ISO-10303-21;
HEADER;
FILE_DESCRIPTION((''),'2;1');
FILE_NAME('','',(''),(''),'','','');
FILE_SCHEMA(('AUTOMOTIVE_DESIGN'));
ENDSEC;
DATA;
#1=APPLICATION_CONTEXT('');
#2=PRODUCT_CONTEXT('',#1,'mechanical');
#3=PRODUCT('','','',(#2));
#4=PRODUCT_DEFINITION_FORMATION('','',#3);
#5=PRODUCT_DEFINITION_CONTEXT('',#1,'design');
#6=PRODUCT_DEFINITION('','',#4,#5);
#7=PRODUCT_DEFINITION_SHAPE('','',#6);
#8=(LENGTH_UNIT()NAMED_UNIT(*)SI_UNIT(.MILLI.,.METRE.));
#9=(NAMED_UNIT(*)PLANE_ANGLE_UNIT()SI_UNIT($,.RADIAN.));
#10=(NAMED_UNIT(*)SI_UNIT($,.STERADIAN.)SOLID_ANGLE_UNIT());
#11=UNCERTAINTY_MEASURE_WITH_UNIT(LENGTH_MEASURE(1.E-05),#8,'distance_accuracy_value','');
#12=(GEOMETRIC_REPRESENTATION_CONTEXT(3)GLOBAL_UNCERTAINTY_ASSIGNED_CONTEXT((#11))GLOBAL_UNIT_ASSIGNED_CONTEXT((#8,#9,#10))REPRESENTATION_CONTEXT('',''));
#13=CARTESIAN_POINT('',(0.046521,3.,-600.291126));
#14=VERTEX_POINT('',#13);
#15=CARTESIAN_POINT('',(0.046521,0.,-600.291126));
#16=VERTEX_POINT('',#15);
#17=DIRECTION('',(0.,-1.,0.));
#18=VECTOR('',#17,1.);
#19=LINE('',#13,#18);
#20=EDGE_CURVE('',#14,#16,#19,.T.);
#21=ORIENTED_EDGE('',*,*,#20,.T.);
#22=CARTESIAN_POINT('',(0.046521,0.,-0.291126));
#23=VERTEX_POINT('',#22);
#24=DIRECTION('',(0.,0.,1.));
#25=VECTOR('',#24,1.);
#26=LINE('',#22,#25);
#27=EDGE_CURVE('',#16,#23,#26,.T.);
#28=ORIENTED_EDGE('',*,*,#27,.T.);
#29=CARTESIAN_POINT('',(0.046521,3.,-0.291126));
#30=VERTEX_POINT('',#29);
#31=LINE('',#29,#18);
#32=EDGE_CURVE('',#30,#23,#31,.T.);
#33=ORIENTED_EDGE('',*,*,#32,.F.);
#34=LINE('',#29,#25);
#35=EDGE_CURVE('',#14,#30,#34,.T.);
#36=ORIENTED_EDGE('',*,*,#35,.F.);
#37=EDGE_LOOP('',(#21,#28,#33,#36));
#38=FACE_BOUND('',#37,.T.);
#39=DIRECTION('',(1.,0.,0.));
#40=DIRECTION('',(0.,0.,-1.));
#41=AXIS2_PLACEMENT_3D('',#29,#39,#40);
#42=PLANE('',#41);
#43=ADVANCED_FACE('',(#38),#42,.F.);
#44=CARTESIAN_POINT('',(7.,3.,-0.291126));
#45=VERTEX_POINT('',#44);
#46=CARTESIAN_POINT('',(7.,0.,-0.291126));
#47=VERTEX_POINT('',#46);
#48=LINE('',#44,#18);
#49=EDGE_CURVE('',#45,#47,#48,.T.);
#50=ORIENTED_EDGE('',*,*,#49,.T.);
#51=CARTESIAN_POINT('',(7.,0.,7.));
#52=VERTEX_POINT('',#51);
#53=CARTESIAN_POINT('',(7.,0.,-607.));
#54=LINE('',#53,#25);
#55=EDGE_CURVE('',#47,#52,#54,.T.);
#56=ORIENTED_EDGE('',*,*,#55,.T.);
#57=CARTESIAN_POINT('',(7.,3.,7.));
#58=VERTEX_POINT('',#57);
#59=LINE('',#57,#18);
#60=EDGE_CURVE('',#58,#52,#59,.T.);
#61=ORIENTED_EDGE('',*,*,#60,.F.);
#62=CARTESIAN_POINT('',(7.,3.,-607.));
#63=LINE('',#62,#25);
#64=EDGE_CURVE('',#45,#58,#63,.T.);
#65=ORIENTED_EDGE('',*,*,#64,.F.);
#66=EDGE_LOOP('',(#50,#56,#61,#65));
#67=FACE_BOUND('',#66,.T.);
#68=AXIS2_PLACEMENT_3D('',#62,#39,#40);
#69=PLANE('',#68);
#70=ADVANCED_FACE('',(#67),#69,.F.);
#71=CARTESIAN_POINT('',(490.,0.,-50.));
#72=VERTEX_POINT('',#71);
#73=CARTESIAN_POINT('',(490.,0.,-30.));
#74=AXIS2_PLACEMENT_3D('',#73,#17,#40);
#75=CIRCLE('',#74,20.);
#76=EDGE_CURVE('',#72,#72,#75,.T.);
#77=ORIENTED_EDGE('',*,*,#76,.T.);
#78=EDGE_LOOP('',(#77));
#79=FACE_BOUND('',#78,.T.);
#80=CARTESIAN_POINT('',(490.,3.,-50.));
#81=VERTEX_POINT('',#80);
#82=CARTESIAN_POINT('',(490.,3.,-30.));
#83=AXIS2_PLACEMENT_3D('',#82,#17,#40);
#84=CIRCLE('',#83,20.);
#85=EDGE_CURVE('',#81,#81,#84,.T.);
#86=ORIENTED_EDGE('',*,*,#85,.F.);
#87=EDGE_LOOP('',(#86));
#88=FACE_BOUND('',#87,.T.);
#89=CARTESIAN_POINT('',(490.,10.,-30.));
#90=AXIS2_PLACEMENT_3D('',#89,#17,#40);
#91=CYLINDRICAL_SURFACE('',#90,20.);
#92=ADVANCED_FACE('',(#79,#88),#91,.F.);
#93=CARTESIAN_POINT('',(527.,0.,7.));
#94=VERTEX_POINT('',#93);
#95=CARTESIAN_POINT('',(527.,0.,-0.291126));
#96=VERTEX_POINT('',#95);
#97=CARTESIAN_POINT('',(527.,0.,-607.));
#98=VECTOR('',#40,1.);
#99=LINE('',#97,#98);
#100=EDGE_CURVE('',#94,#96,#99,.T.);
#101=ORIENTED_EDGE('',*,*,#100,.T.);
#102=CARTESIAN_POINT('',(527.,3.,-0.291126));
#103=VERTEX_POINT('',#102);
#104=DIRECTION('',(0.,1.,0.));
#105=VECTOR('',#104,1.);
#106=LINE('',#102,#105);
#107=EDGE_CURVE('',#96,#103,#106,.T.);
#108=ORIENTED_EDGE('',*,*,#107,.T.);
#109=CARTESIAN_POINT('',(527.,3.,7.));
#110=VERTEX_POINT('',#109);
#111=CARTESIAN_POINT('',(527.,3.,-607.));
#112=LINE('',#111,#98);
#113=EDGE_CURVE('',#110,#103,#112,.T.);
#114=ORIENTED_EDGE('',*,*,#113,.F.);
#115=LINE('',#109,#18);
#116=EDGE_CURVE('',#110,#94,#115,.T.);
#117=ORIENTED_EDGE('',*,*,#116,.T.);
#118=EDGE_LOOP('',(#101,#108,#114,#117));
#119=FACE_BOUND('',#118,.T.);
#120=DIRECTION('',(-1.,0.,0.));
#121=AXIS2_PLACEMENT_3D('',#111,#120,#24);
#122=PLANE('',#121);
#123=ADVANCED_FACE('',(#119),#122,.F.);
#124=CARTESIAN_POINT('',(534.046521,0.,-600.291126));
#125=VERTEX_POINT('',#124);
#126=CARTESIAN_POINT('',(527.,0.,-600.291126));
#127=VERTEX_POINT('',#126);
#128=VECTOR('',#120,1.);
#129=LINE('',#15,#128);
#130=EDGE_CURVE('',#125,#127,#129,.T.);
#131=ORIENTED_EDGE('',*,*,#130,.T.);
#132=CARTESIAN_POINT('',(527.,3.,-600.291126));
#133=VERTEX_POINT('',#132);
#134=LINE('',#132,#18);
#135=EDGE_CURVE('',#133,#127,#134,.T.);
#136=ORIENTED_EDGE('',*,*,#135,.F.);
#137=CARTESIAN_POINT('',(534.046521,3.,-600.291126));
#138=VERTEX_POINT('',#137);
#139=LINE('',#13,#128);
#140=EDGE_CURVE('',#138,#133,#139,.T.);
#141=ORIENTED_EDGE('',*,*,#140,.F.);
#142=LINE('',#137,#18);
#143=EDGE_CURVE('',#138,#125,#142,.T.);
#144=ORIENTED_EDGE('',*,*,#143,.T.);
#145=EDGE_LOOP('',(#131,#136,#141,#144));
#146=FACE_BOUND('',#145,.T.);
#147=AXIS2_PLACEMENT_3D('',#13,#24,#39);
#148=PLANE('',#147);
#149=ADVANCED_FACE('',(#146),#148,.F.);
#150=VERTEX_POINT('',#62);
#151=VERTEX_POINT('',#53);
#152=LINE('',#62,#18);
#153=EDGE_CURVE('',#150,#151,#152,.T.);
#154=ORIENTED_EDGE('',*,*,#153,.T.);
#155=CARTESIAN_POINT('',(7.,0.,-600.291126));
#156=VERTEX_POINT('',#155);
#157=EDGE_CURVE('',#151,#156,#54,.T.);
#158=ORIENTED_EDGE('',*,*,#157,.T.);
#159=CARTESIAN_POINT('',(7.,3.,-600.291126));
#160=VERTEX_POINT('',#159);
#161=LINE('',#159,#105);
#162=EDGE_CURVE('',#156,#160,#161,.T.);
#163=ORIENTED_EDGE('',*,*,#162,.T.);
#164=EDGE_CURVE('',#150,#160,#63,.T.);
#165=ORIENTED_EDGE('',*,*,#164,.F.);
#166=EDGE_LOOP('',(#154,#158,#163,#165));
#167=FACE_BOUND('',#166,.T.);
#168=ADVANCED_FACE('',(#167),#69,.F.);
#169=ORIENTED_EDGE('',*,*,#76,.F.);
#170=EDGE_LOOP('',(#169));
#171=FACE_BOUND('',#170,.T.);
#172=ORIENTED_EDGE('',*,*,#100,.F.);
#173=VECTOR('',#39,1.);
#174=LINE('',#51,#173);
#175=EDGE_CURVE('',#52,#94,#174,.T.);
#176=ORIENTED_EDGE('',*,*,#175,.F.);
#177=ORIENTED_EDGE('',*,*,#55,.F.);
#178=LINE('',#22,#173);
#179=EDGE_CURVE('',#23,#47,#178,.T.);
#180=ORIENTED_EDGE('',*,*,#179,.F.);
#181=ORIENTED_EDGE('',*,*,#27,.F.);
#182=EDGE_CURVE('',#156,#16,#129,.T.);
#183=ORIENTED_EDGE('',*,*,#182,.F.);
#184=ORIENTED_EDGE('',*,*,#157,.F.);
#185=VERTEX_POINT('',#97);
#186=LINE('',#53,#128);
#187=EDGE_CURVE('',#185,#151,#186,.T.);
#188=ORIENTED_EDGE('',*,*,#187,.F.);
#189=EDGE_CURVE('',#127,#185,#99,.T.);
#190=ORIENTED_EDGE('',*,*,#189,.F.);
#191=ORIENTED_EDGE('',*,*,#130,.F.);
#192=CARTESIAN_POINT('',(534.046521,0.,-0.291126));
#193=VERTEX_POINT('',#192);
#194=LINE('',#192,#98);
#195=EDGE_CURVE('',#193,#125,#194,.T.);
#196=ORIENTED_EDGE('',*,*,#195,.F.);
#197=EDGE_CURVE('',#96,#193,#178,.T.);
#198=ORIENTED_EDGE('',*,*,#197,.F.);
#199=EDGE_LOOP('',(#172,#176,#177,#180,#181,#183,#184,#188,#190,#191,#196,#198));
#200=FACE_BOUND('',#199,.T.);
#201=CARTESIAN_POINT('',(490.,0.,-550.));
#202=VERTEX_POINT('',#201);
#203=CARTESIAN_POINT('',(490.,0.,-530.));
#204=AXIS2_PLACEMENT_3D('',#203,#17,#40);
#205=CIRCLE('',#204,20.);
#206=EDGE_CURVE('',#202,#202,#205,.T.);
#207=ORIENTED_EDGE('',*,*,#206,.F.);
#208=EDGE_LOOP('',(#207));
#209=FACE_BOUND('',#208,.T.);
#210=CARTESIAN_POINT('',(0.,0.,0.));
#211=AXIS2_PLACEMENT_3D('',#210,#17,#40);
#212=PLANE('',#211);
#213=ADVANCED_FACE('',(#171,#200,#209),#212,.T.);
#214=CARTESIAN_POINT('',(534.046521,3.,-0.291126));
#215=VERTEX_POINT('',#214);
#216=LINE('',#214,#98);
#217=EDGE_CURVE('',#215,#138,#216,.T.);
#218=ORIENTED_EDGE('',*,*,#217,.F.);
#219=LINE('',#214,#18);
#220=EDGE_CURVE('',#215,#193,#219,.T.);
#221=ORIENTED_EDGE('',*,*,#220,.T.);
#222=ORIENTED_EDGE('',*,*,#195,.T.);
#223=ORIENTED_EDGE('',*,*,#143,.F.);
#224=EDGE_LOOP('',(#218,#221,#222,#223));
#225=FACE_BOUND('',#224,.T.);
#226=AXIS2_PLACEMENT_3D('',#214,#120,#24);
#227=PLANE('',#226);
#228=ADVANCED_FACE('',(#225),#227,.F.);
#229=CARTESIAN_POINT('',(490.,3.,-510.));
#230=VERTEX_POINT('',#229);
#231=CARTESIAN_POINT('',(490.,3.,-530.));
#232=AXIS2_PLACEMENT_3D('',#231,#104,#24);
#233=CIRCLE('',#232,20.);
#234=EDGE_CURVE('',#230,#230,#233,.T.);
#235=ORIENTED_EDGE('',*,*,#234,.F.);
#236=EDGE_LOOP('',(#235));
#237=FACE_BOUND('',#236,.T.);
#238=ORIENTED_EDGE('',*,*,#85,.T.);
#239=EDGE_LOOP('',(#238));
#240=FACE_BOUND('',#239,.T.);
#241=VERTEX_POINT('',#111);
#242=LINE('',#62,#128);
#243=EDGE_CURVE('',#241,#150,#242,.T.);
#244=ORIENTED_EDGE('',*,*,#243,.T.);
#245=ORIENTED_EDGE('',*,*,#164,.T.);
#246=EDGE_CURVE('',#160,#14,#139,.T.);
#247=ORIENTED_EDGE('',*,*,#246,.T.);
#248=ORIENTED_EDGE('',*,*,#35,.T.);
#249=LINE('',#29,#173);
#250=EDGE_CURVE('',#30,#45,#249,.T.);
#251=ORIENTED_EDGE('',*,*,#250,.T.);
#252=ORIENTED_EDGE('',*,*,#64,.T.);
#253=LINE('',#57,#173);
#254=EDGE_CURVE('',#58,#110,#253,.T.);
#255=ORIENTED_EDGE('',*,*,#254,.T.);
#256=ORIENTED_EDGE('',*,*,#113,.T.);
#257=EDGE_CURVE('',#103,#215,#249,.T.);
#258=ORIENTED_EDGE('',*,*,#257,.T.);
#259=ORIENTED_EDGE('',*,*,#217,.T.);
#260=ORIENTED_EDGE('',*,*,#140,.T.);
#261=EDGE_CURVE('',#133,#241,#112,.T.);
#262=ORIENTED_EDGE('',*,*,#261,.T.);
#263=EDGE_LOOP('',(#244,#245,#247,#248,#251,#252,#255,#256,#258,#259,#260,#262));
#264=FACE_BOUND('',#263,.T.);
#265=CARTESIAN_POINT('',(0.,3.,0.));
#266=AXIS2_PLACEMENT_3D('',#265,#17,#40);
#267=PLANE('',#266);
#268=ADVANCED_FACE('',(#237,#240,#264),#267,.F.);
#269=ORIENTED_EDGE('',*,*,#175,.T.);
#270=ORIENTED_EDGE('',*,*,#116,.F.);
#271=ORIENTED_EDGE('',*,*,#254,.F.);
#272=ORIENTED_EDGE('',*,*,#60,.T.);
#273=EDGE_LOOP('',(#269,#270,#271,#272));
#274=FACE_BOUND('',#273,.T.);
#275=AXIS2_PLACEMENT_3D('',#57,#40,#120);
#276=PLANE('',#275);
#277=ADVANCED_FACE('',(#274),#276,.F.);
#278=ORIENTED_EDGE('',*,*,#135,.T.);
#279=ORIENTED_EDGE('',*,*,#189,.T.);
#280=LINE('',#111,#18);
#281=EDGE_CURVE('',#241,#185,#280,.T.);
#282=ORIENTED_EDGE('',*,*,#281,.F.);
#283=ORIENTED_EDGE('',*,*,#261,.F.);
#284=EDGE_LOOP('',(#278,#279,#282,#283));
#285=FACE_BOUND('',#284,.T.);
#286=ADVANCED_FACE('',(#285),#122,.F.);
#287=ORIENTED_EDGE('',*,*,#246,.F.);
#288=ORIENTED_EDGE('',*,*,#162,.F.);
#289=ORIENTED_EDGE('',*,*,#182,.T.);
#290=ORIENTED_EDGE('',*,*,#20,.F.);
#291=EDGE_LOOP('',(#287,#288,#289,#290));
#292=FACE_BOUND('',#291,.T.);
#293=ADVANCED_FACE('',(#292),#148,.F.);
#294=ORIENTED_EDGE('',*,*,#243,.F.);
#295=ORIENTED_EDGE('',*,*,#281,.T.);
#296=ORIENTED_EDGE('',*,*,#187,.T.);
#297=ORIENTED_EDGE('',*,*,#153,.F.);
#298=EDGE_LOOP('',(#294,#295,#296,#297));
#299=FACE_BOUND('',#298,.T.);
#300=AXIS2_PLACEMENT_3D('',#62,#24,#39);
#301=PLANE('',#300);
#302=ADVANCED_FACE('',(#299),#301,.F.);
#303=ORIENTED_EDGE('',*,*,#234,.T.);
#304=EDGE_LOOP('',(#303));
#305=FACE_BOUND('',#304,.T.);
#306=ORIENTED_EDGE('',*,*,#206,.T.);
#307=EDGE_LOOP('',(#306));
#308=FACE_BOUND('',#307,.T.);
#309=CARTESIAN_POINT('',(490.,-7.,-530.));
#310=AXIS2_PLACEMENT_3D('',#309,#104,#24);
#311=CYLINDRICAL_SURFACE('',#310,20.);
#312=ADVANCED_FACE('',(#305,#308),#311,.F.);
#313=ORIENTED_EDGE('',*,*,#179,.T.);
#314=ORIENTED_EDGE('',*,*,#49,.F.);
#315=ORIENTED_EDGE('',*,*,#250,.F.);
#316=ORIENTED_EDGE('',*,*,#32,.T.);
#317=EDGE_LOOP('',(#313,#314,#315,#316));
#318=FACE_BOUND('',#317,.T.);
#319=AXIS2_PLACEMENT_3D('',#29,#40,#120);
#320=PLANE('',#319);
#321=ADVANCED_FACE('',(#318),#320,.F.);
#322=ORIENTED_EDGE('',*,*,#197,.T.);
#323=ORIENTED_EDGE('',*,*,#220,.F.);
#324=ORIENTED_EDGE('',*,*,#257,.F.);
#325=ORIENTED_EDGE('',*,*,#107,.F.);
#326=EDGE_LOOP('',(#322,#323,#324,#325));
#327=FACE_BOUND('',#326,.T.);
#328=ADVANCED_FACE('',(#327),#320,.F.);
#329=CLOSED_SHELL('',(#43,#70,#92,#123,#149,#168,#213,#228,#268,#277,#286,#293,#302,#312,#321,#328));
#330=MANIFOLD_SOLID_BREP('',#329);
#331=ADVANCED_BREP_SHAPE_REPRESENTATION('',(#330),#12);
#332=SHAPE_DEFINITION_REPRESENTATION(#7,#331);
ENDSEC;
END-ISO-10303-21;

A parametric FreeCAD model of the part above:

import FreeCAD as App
import Part
import Sketcher
from FreeCAD import Vector
Q = App.Units.Quantity

doc = App.newDocument("Part")
body = doc.addObject("PartDesign::Body", "Body")

sketch1 = doc.addObject("Sketcher::SketchObject", "Sketch")
body.addObject(sketch1)
sketch1.AttachmentSupport = (doc.XZ_Plane, [""])
sketch1.MapMode = "FlatFace"
sketch1.addGeometry([
    Part.LineSegment(Vector(0, -600, 0), Vector(0, 0, 0)),
    Part.LineSegment(Vector(0, 0, 0), Vector(534, 0, 0)),
    Part.LineSegment(Vector(534, 0, 0), Vector(534, -600, 0)),
    Part.LineSegment(Vector(534, -600, 0), Vector(0, -600, 0)),
], False)
sketch1.addConstraint([
    Sketcher.Constraint("Coincident", 0, 2, 1, 1),
    Sketcher.Constraint("Coincident", 1, 2, 2, 1),
    Sketcher.Constraint("Coincident", 2, 2, 3, 1),
    Sketcher.Constraint("Coincident", 3, 2, 0, 1),
    Sketcher.Constraint("Vertical", 0),
    Sketcher.Constraint("Horizontal", 1),
    Sketcher.Constraint("Vertical", 2),
    Sketcher.Constraint("Horizontal", 3),
    Sketcher.Constraint("DistanceX", 1, 1, 1, 2, Q("534 mm")),
    Sketcher.Constraint("DistanceY", 0, 1, 0, 2, Q("600 mm")),
    Sketcher.Constraint("DistanceX", -1, 1, 0, 2, Q("0.046521 mm")),
    Sketcher.Constraint("DistanceY", 0, 2, -1, 1, Q("0.291126 mm")),
])
pad1 = doc.addObject("PartDesign::Pad", "Pad")
body.addObject(pad1)
pad1.Profile = sketch1
pad1.Length = 3
pad1.Reversed = True

sketch2 = doc.addObject("Sketcher::SketchObject", "Sketch001")
body.addObject(sketch2)
sketch2.AttachmentSupport = (doc.XZ_Plane, [""])
sketch2.MapMode = "FlatFace"
sketch2.addGeometry([
    Part.LineSegment(Vector(7, -607, 0), Vector(7, 7, 0)),
    Part.LineSegment(Vector(7, 7, 0), Vector(527, 7, 0)),
    Part.LineSegment(Vector(527, 7, 0), Vector(527, -607, 0)),
    Part.LineSegment(Vector(527, -607, 0), Vector(7, -607, 0)),
], False)
sketch2.addConstraint([
    Sketcher.Constraint("Coincident", 0, 2, 1, 1),
    Sketcher.Constraint("Coincident", 1, 2, 2, 1),
    Sketcher.Constraint("Coincident", 2, 2, 3, 1),
    Sketcher.Constraint("Coincident", 3, 2, 0, 1),
    Sketcher.Constraint("Vertical", 0),
    Sketcher.Constraint("Horizontal", 1),
    Sketcher.Constraint("Vertical", 2),
    Sketcher.Constraint("Horizontal", 3),
    Sketcher.Constraint("DistanceX", 1, 1, 1, 2, Q("520 mm")),
    Sketcher.Constraint("DistanceY", 0, 1, 0, 2, Q("614 mm")),
    Sketcher.Constraint("DistanceX", -1, 1, 0, 2, Q("7 mm")),
    Sketcher.Constraint("DistanceY", -1, 1, 0, 2, Q("7 mm")),
])
pad2 = doc.addObject("PartDesign::Pad", "Pad001")
body.addObject(pad2)
pad2.Profile = sketch2
pad2.Length = 3
pad2.Reversed = True

sketch3 = doc.addObject("Sketcher::SketchObject", "Sketch002")
body.addObject(sketch3)
sketch3.AttachmentSupport = (doc.XZ_Plane, [""])
sketch3.MapMode = "FlatFace"
sketch3.AttachmentOffset = App.Placement(Vector(0, 0, -3), App.Rotation())
sketch3.addGeometry(Part.Circle(Vector(490, -530, 0), Vector(0, 0, 1), 20), False)
sketch3.addConstraint([
    Sketcher.Constraint("Diameter", 0, Q("40 mm")),
    Sketcher.Constraint("DistanceX", -1, 1, 0, 3, Q("490 mm")),
    Sketcher.Constraint("DistanceY", 0, 3, -1, 1, Q("530 mm")),
])
pocket1 = doc.addObject("PartDesign::Pocket", "Pocket")
body.addObject(pocket1)
pocket1.Profile = sketch3
pocket1.Length = 10
pocket1.Reversed = True

sketch4 = doc.addObject("Sketcher::SketchObject", "Sketch003")
body.addObject(sketch4)
sketch4.AttachmentSupport = (doc.XZ_Plane, [""])
sketch4.MapMode = "FlatFace"
sketch4.addGeometry(Part.Circle(Vector(490, -30, 0), Vector(0, 0, 1), 20), False)
sketch4.addConstraint([
    Sketcher.Constraint("Diameter", 0, Q("40 mm")),
    Sketcher.Constraint("DistanceX", -1, 1, 0, 3, Q("490 mm")),
    Sketcher.Constraint("DistanceY", 0, 3, -1, 1, Q("30 mm")),
])
pocket2 = doc.addObject("PartDesign::Pocket", "Pocket001")
body.addObject(pocket2)
pocket2.Profile = sketch4
pocket2.Length = 10

doc.recompute()
